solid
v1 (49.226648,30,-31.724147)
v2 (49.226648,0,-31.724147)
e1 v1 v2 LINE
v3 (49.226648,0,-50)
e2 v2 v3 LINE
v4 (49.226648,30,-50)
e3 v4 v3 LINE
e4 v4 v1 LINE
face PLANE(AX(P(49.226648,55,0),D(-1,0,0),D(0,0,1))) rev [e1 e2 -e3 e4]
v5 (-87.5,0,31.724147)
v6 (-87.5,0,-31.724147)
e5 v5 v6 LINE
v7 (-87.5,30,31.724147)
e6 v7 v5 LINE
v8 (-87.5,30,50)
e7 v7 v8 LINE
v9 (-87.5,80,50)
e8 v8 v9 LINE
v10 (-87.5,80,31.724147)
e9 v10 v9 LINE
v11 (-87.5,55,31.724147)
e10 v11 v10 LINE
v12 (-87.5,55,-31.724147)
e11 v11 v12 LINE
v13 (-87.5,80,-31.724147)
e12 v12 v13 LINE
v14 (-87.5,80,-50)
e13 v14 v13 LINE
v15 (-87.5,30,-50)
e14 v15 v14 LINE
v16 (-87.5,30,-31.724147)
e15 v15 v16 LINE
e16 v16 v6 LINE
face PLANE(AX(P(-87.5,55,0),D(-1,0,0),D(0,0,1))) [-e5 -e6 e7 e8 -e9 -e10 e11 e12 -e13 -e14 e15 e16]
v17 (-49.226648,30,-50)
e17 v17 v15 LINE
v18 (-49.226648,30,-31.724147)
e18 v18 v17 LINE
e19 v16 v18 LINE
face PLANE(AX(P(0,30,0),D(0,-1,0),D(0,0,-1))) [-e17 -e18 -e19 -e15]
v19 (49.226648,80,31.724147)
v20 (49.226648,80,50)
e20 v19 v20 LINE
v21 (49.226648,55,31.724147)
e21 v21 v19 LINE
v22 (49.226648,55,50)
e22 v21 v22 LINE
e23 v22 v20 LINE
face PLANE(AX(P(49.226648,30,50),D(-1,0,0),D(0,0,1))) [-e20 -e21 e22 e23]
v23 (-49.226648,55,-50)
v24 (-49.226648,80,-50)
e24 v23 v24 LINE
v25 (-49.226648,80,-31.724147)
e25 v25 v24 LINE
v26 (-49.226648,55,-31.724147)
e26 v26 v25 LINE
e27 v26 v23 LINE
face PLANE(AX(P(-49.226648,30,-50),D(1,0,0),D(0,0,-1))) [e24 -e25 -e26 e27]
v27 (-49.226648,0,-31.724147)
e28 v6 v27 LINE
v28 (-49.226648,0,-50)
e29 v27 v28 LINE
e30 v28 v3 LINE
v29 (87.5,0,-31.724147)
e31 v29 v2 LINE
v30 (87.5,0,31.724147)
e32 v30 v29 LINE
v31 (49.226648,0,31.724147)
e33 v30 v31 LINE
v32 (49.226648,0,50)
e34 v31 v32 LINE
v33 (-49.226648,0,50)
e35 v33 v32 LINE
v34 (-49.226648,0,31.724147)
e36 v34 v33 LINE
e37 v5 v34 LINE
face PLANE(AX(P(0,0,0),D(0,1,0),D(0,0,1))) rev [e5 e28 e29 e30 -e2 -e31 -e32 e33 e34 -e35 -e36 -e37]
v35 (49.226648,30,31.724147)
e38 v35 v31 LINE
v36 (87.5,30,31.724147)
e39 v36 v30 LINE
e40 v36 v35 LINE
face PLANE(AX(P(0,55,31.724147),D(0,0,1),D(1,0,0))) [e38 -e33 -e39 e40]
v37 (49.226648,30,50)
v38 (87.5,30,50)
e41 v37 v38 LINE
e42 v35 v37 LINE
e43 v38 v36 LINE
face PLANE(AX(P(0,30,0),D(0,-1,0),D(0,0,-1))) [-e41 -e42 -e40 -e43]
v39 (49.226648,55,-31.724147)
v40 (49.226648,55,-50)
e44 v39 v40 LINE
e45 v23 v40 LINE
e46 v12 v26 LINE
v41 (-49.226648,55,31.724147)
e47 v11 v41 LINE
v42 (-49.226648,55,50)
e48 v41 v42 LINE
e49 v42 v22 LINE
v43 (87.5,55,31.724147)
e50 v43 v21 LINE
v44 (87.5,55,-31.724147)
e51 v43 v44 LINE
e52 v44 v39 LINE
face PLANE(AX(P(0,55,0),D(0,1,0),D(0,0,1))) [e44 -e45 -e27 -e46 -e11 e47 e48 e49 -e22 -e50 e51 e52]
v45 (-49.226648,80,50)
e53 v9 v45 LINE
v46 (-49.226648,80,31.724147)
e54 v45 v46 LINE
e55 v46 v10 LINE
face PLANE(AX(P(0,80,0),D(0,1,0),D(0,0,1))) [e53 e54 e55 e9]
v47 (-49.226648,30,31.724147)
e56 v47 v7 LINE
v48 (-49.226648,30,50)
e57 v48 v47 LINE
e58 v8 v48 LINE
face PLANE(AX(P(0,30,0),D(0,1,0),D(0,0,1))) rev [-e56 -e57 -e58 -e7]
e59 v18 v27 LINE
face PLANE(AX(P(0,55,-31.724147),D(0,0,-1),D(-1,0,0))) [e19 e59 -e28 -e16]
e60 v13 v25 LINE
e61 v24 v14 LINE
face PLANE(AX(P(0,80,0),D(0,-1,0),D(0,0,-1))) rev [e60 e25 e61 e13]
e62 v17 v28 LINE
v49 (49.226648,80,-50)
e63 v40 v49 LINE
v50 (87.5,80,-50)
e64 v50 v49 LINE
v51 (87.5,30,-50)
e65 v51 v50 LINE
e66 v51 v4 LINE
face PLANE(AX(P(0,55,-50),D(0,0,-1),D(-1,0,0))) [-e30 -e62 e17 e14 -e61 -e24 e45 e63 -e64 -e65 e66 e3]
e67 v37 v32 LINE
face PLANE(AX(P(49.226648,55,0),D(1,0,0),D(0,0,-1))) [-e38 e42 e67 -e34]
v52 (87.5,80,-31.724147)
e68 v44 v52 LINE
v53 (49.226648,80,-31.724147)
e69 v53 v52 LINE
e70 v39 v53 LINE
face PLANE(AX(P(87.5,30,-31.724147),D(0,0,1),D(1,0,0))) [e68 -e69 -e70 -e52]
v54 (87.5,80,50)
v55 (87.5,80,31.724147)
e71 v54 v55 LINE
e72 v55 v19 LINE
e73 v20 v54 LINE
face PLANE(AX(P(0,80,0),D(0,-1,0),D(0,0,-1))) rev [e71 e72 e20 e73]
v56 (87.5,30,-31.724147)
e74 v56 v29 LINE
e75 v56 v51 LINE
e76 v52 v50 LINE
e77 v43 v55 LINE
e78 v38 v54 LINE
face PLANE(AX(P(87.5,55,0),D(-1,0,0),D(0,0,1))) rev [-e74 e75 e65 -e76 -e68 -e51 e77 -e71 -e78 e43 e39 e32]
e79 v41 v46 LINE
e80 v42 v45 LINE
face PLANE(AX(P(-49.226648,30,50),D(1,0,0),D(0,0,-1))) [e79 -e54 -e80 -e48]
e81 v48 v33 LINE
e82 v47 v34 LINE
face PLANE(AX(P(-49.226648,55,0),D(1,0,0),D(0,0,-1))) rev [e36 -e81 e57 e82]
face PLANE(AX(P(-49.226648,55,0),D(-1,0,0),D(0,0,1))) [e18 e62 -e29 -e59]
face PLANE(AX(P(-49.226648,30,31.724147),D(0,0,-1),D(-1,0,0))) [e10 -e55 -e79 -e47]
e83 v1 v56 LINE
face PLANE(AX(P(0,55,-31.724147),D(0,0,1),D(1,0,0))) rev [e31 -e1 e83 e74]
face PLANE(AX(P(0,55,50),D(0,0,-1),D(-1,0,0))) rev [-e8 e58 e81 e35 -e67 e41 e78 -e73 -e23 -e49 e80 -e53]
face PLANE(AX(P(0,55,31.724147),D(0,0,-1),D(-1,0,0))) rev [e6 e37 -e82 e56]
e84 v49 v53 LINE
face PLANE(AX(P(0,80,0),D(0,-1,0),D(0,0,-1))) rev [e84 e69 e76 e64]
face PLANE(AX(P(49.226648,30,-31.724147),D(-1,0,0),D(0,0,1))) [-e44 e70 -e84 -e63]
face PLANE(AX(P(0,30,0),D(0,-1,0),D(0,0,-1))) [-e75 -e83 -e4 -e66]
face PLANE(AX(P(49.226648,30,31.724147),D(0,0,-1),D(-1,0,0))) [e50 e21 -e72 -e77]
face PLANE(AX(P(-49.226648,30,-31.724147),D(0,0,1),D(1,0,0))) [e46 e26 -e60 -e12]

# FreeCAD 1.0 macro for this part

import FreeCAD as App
import Part
import Sketcher

V = App.Vector
Q = App.Units.Quantity

doc = App.newDocument("Part")
body = doc.addObject("PartDesign::Body", "Body")

sketch1 = body.newObject("Sketcher::SketchObject", "Sketch")
sketch1.AttachmentSupport = (doc.getObject("XZ_Plane"), [""])
sketch1.MapMode = "FlatFace"
sketch1.addGeometry([
    Part.LineSegment(V(88, 32, 0), V(88, -32, 0)),
    Part.LineSegment(V(88, -32, 0), V(49, -32, 0)),
    Part.LineSegment(V(49, -32, 0), V(49, -50, 0)),
    Part.LineSegment(V(49, -50, 0), V(-49, -50, 0)),
    Part.LineSegment(V(-49, -50, 0), V(-49, -32, 0)),
    Part.LineSegment(V(-49, -32, 0), V(-88, -32, 0)),
    Part.LineSegment(V(-88, -32, 0), V(-88, 32, 0)),
    Part.LineSegment(V(-88, 32, 0), V(-49, 32, 0)),
    Part.LineSegment(V(-49, 32, 0), V(-49, 50, 0)),
    Part.LineSegment(V(-49, 50, 0), V(49, 50, 0)),
    Part.LineSegment(V(49, 50, 0), V(49, 32, 0)),
    Part.LineSegment(V(49, 32, 0), V(88, 32, 0)),
], False)
sketch1.addConstraint([
    Sketcher.Constraint("Coincident", 0, 2, 1, 1),
    Sketcher.Constraint("Coincident", 1, 2, 2, 1),
    Sketcher.Constraint("Coincident", 2, 2, 3, 1),
    Sketcher.Constraint("Coincident", 3, 2, 4, 1),
    Sketcher.Constraint("Coincident", 4, 2, 5, 1),
    Sketcher.Constraint("Coincident", 5, 2, 6, 1),
    Sketcher.Constraint("Coincident", 6, 2, 7, 1),
    Sketcher.Constraint("Coincident", 7, 2, 8, 1),
    Sketcher.Constraint("Coincident", 8, 2, 9, 1),
    Sketcher.Constraint("Coincident", 9, 2, 10, 1),
    Sketcher.Constraint("Coincident", 10, 2, 11, 1),
    Sketcher.Constraint("Coincident", 11, 2, 0, 1),
    Sketcher.Constraint("Vertical", 0),
    Sketcher.Constraint("Horizontal", 1),
    Sketcher.Constraint("Vertical", 2),
    Sketcher.Constraint("Horizontal", 3),
    Sketcher.Constraint("Vertical", 4),
    Sketcher.Constraint("Horizontal", 5),
    Sketcher.Constraint("Vertical", 6),
    Sketcher.Constraint("Horizontal", 7),
    Sketcher.Constraint("Vertical", 8),
    Sketcher.Constraint("Horizontal", 9),
    Sketcher.Constraint("Vertical", 10),
    Sketcher.Constraint("Horizontal", 11),
    Sketcher.Constraint("Symmetric", 0, 2, 6, 2, -1, 1),
    Sketcher.Constraint("Symmetric", 2, 2, 8, 2, -1, 1),
    Sketcher.Constraint("Symmetric", 4, 2, 10, 2, -1, 1),
    Sketcher.Constraint("Symmetric", 1, 2, 4, 2, -2),
    Sketcher.Constraint("DistanceY", 2, 2, -1, 1, Q("50 mm")),
    Sketcher.Constraint("DistanceX", 5, 2, 0, 2, Q("175 mm")),
    Sketcher.Constraint("DistanceX", 1, 2, 1, 1, Q("38.273352 mm")),
    Sketcher.Constraint("DistanceY", 0, 2, 0, 1, Q("63.448293 mm")),
])
pad1 = body.newObject("PartDesign::Pad", "Pad")
pad1.Profile = sketch1
pad1.Length = 55
pad1.Reversed = True

sketch2 = body.newObject("Sketcher::SketchObject", "Sketch001")
sketch2.AttachmentSupport = (doc.getObject("XZ_Plane"), [""])
sketch2.MapMode = "FlatFace"
sketch2.AttachmentOffset = App.Placement(V(0, 0, -55), App.Rotation())
sketch2.addGeometry([
    Part.LineSegment(V(-88, -50, 0), V(-88, -32, 0)),
    Part.LineSegment(V(-88, -32, 0), V(-49, -32, 0)),
    Part.LineSegment(V(-49, -32, 0), V(-49, -50, 0)),
    Part.LineSegment(V(-49, -50, 0), V(-88, -50, 0)),
    Part.LineSegment(V(-88, 32, 0), V(-88, 50, 0)),
    Part.LineSegment(V(-88, 50, 0), V(-49, 50, 0)),
    Part.LineSegment(V(-49, 50, 0), V(-49, 32, 0)),
    Part.LineSegment(V(-49, 32, 0), V(-88, 32, 0)),
    Part.LineSegment(V(49, 32, 0), V(49, 50, 0)),
    Part.LineSegment(V(49, 50, 0), V(88, 50, 0)),
    Part.LineSegment(V(88, 50, 0), V(88, 32, 0)),
    Part.LineSegment(V(88, 32, 0), V(49, 32, 0)),
    Part.LineSegment(V(49, -50, 0), V(49, -32, 0)),
    Part.LineSegment(V(49, -32, 0), V(88, -32, 0)),
    Part.LineSegment(V(88, -32, 0), V(88, -50, 0)),
    Part.LineSegment(V(88, -50, 0), V(49, -50, 0)),
], False)
sketch2.addConstraint([
    Sketcher.Constraint("Coincident", 0, 2, 1, 1),
    Sketcher.Constraint("Coincident", 1, 2, 2, 1),
    Sketcher.Constraint("Coincident", 2, 2, 3, 1),
    Sketcher.Constraint("Coincident", 3, 2, 0, 1),
    Sketcher.Constraint("Coincident", 4, 2, 5, 1),
    Sketcher.Constraint("Coincident", 5, 2, 6, 1),
    Sketcher.Constraint("Coincident", 6, 2, 7, 1),
    Sketcher.Constraint("Coincident", 7, 2, 4, 1),
    Sketcher.Constraint("Coincident", 8, 2, 9, 1),
    Sketcher.Constraint("Coincident", 9, 2, 10, 1),
    Sketcher.Constraint("Coincident", 10, 2, 11, 1),
    Sketcher.Constraint("Coincident", 11, 2, 8, 1),
    Sketcher.Constraint("Coincident", 12, 2, 13, 1),
    Sketcher.Constraint("Coincident", 13, 2, 14, 1),
    Sketcher.Constraint("Coincident", 14, 2, 15, 1),
    Sketcher.Constraint("Coincident", 15, 2, 12, 1),
    Sketcher.Constraint("Vertical", 0),
    Sketcher.Constraint("Horizontal", 1),
    Sketcher.Constraint("Vertical", 2),
    Sketcher.Constraint("Horizontal", 3),
    Sketcher.Constraint("Vertical", 4),
    Sketcher.Constraint("Horizontal", 5),
    Sketcher.Constraint("Vertical", 6),
    Sketcher.Constraint("Horizontal", 7),
    Sketcher.Constraint("Vertical", 8),
    Sketcher.Constraint("Horizontal", 9),
    Sketcher.Constraint("Vertical", 10),
    Sketcher.Constraint("Horizontal", 11),
    Sketcher.Constraint("Vertical", 12),
    Sketcher.Constraint("Horizontal", 13),
    Sketcher.Constraint("Vertical", 14),
    Sketcher.Constraint("Horizontal", 15),
    Sketcher.Constraint("Symmetric", 2, 2, 8, 2, -1, 1),
    Sketcher.Constraint("Symmetric", 0, 2, 10, 2, -1, 1),
    Sketcher.Constraint("Symmetric", 6, 2, 12, 2, -1, 1),
    Sketcher.Constraint("Symmetric", 4, 2, 14, 2, -1, 1),
    Sketcher.Constraint("Symmetric", 5, 2, 8, 2, -2),
    Sketcher.Constraint("Symmetric", 7, 2, 10, 2, -2),
    Sketcher.Constraint("DistanceY", 2, 2, -1, 1, Q("50 mm")),
    Sketcher.Constraint("DistanceX", 0, 2, -1, 1, Q("87.5 mm")),
    Sketcher.Constraint("DistanceX", 1, 1, 1, 2, Q("38.273352 mm")),
    Sketcher.Constraint("DistanceY", 0, 1, 0, 2, Q("18.275853 mm")),
])
pad2 = body.newObject("PartDesign::Pad", "Pad001")
pad2.Profile = sketch2
pad2.Type = "TwoLengths"
pad2.Length = 25
pad2.Length2 = 25
pad2.Reversed = True

doc.recompute()
